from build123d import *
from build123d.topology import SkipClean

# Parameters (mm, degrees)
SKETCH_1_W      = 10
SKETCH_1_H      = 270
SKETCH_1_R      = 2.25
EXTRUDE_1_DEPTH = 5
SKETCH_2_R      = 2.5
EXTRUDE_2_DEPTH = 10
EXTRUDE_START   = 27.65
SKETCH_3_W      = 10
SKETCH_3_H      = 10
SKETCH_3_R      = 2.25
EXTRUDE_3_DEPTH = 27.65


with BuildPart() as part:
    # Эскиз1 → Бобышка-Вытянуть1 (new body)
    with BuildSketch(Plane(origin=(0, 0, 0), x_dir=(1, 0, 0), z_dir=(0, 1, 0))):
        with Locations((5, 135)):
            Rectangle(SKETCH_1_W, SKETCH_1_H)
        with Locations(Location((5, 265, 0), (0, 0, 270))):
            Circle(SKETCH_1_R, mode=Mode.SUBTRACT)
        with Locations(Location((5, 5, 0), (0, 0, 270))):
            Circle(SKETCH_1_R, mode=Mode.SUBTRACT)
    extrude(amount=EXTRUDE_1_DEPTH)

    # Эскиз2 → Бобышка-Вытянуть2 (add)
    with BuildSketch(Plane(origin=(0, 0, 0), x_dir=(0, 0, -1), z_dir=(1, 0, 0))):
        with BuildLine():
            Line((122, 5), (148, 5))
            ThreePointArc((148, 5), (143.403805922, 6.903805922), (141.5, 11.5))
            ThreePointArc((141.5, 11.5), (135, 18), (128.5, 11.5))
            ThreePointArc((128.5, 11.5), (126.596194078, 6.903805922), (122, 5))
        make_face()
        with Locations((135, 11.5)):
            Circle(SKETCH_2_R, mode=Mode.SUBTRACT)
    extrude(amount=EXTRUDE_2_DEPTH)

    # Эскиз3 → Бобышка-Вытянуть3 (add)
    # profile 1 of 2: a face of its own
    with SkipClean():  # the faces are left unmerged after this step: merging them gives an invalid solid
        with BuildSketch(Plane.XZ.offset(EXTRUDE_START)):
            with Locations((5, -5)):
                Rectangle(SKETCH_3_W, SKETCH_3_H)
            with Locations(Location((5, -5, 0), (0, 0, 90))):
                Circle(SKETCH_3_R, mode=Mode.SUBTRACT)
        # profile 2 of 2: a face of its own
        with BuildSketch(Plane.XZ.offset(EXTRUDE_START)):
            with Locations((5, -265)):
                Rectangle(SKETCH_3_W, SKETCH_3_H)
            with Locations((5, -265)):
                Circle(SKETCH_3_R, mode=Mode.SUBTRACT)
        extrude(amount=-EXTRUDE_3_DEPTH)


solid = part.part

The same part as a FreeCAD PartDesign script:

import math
import FreeCAD as App
import Part
import Sketcher

V = App.Vector
Q = App.Units.Quantity


def add_polygon(sketch, points):
    """Adds a closed chain of lines whose ends are joined by coincident constraints."""
    first, n = sketch.GeometryCount, len(points)
    for a, b in zip(points, points[1:] + points[:1]):
        sketch.addGeometry(Part.LineSegment(App.Vector(*a, 0), App.Vector(*b, 0)), False)
    for i in range(n):
        sketch.addConstraint(Sketcher.Constraint("Coincident", first + i, 2, first + (i + 1) % n, 1))

doc = App.newDocument("Part")
body = doc.addObject("PartDesign::Body", "Body")

sketch1 = body.newObject("Sketcher::SketchObject", "Sketch")
sketch1.AttachmentSupport = (doc.getObject("XZ_Plane"), [""])
sketch1.MapMode = "FlatFace"
add_polygon(sketch1, [(0, -270), (0, 0), (10, 0), (10, -270)])
sketch1.addGeometry(Part.Circle(V(5, -5, 0), V(0, 0, 1), 2.2), False)
sketch1.addGeometry(Part.Circle(V(5, -265, 0), V(0, 0, 1), 2.2), False)
sketch1.addConstraint(Sketcher.Constraint("Vertical", 0))
sketch1.addConstraint(Sketcher.Constraint("Horizontal", 1))
sketch1.addConstraint(Sketcher.Constraint("Vertical", 2))
sketch1.addConstraint(Sketcher.Constraint("Horizontal", 3))
sketch1.addConstraint(Sketcher.Constraint("Coincident", 0, 2, -1, 1))
sketch1.addConstraint(Sketcher.Constraint("Equal", 4, 5))
sketch1.addConstraint(Sketcher.Constraint("Vertical", 4, 3, 5, 3))
sketch1.addConstraint(Sketcher.Constraint("Diameter", 4, Q("4.5 mm")))
sketch1.addConstraint(Sketcher.Constraint("DistanceX", 1, 1, 1, 2, Q("10 mm")))
sketch1.addConstraint(Sketcher.Constraint("DistanceY", 0, 1, 0, 2, Q("270 mm")))
sketch1.addConstraint(Sketcher.Constraint("DistanceX", -1, 1, 4, 3, Q("5 mm")))
sketch1.addConstraint(Sketcher.Constraint("DistanceY", 4, 3, -1, 1, Q("5 mm")))
sketch1.addConstraint(Sketcher.Constraint("DistanceY", 5, 3, -1, 1, Q("265 mm")))
pad1 = body.newObject("PartDesign::Pad", "Pad")
pad1.Profile = sketch1
pad1.Length = 5
pad1.Reversed = True

sketch2 = body.newObject("Sketcher::SketchObject", "Sketch001")
sketch2.AttachmentSupport = (doc.getObject("YZ_Plane"), [""])
sketch2.MapMode = "FlatFace"
sketch2.addGeometry(Part.LineSegment(V(5, -122, 0), V(5, -148, 0)), False)
sketch2.addGeometry(Part.ArcOfCircle(Part.Circle(V(11.5, -148, 0), V(0, 0, 1), 6.5), math.radians(90), math.radians(180)), False)
sketch2.addGeometry(Part.ArcOfCircle(Part.Circle(V(11.5, -135, 0), V(0, 0, 1), 6.5), math.radians(-90), math.radians(90)), False)
sketch2.addGeometry(Part.ArcOfCircle(Part.Circle(V(11.5, -122, 0), V(0, 0, 1), 6.5), math.radians(180), math.radians(270)), False)
sketch2.addGeometry(Part.Circle(V(11.5, -135, 0), V(0, 0, 1), 2.5), False)
sketch2.addConstraint(Sketcher.Constraint("Tangent", 0, 2, 1, 2))
sketch2.addConstraint(Sketcher.Constraint("Tangent", 1, 1, 2, 1))
sketch2.addConstraint(Sketcher.Constraint("Tangent", 2, 2, 3, 2))
sketch2.addConstraint(Sketcher.Constraint("Tangent", 3, 1, 0, 1))
sketch2.addConstraint(Sketcher.Constraint("Vertical", 0))
sketch2.addConstraint(Sketcher.Constraint("Coincident", 4, 3, 2, 3))
sketch2.addConstraint(Sketcher.Constraint("Equal", 1, 2))
sketch2.addConstraint(Sketcher.Constraint("Equal", 2, 3))
sketch2.addConstraint(Sketcher.Constraint("Vertical", 1, 3, 2, 3))
sketch2.addConstraint(Sketcher.Constraint("Diameter", 4, Q("5 mm")))
sketch2.addConstraint(Sketcher.Constraint("Radius", 1, Q("6.5 mm")))
sketch2.addConstraint(Sketcher.Constraint("DistanceY", 1, 3, -1, 1, Q("148 mm")))
sketch2.addConstraint(Sketcher.Constraint("DistanceX", -1, 1, 0, 2, Q("5 mm")))
pad2 = body.newObject("PartDesign::Pad", "Pad001")
pad2.Profile = sketch2
pad2.Length = 10

sketch3 = body.newObject("Sketcher::SketchObject", "Sketch002")
sketch3.AttachmentSupport = (doc.getObject("XZ_Plane"), [""])
sketch3.MapMode = "FlatFace"
sketch3.AttachmentOffset = App.Placement(V(0, 0, 27.65), App.Rotation())
add_polygon(sketch3, [(0, 0), (0, -10), (10, -10), (10, 0)])
sketch3.addGeometry(Part.Circle(V(5, -5, 0), V(0, 0, 1), 2.2), False)
add_polygon(sketch3, [(0, -260), (0, -270), (10, -270), (10, -260)])
sketch3.addGeometry(Part.Circle(V(5, -265, 0), V(0, 0, 1), 2.2), False)
sketch3.addConstraint(Sketcher.Constraint("Vertical", 0))
sketch3.addConstraint(Sketcher.Constraint("Horizontal", 1))
sketch3.addConstraint(Sketcher.Constraint("Vertical", 2))
sketch3.addConstraint(Sketcher.Constraint("Horizontal", 3))
sketch3.addConstraint(Sketcher.Constraint("Vertical", 5))
sketch3.addConstraint(Sketcher.Constraint("Horizontal", 6))
sketch3.addConstraint(Sketcher.Constraint("Vertical", 7))
sketch3.addConstraint(Sketcher.Constraint("Horizontal", 8))
sketch3.addConstraint(Sketcher.Constraint("Coincident", 3, 2, -1, 1))
sketch3.addConstraint(Sketcher.Constraint("Equal", 4, 9))
sketch3.addConstraint(Sketcher.Constraint("PointOnObject", 5, 2, -2))
sketch3.addConstraint(Sketcher.Constraint("Vertical", 4, 3, 9, 3))
sketch3.addConstraint(Sketcher.Constraint("Vertical", 2, 2, 6, 2))
sketch3.addConstraint(Sketcher.Constraint("Equal", 8, 0))
sketch3.addConstraint(Sketcher.Constraint("Equal", 2, 5))
sketch3.addConstraint(Sketcher.Constraint("Diameter", 4, Q("4.5 mm")))
sketch3.addConstraint(Sketcher.Constraint("DistanceX", 1, 1, 1, 2, Q("10 mm")))
sketch3.addConstraint(Sketcher.Constraint("DistanceX", -1, 1, 4, 3, Q("5 mm")))
sketch3.addConstraint(Sketcher.Constraint("DistanceY", 4, 3, -1, 1, Q("5 mm")))
sketch3.addConstraint(Sketcher.Constraint("DistanceY", 9, 3, -1, 1, Q("265 mm")))
sketch3.addConstraint(Sketcher.Constraint("DistanceY", 5, 2, -1, 1, Q("270 mm")))
pad3 = body.newObject("PartDesign::Pad", "Pad002")
pad3.Profile = sketch3
pad3.Length = 27.65
pad3.Reversed = True

doc.recompute()
